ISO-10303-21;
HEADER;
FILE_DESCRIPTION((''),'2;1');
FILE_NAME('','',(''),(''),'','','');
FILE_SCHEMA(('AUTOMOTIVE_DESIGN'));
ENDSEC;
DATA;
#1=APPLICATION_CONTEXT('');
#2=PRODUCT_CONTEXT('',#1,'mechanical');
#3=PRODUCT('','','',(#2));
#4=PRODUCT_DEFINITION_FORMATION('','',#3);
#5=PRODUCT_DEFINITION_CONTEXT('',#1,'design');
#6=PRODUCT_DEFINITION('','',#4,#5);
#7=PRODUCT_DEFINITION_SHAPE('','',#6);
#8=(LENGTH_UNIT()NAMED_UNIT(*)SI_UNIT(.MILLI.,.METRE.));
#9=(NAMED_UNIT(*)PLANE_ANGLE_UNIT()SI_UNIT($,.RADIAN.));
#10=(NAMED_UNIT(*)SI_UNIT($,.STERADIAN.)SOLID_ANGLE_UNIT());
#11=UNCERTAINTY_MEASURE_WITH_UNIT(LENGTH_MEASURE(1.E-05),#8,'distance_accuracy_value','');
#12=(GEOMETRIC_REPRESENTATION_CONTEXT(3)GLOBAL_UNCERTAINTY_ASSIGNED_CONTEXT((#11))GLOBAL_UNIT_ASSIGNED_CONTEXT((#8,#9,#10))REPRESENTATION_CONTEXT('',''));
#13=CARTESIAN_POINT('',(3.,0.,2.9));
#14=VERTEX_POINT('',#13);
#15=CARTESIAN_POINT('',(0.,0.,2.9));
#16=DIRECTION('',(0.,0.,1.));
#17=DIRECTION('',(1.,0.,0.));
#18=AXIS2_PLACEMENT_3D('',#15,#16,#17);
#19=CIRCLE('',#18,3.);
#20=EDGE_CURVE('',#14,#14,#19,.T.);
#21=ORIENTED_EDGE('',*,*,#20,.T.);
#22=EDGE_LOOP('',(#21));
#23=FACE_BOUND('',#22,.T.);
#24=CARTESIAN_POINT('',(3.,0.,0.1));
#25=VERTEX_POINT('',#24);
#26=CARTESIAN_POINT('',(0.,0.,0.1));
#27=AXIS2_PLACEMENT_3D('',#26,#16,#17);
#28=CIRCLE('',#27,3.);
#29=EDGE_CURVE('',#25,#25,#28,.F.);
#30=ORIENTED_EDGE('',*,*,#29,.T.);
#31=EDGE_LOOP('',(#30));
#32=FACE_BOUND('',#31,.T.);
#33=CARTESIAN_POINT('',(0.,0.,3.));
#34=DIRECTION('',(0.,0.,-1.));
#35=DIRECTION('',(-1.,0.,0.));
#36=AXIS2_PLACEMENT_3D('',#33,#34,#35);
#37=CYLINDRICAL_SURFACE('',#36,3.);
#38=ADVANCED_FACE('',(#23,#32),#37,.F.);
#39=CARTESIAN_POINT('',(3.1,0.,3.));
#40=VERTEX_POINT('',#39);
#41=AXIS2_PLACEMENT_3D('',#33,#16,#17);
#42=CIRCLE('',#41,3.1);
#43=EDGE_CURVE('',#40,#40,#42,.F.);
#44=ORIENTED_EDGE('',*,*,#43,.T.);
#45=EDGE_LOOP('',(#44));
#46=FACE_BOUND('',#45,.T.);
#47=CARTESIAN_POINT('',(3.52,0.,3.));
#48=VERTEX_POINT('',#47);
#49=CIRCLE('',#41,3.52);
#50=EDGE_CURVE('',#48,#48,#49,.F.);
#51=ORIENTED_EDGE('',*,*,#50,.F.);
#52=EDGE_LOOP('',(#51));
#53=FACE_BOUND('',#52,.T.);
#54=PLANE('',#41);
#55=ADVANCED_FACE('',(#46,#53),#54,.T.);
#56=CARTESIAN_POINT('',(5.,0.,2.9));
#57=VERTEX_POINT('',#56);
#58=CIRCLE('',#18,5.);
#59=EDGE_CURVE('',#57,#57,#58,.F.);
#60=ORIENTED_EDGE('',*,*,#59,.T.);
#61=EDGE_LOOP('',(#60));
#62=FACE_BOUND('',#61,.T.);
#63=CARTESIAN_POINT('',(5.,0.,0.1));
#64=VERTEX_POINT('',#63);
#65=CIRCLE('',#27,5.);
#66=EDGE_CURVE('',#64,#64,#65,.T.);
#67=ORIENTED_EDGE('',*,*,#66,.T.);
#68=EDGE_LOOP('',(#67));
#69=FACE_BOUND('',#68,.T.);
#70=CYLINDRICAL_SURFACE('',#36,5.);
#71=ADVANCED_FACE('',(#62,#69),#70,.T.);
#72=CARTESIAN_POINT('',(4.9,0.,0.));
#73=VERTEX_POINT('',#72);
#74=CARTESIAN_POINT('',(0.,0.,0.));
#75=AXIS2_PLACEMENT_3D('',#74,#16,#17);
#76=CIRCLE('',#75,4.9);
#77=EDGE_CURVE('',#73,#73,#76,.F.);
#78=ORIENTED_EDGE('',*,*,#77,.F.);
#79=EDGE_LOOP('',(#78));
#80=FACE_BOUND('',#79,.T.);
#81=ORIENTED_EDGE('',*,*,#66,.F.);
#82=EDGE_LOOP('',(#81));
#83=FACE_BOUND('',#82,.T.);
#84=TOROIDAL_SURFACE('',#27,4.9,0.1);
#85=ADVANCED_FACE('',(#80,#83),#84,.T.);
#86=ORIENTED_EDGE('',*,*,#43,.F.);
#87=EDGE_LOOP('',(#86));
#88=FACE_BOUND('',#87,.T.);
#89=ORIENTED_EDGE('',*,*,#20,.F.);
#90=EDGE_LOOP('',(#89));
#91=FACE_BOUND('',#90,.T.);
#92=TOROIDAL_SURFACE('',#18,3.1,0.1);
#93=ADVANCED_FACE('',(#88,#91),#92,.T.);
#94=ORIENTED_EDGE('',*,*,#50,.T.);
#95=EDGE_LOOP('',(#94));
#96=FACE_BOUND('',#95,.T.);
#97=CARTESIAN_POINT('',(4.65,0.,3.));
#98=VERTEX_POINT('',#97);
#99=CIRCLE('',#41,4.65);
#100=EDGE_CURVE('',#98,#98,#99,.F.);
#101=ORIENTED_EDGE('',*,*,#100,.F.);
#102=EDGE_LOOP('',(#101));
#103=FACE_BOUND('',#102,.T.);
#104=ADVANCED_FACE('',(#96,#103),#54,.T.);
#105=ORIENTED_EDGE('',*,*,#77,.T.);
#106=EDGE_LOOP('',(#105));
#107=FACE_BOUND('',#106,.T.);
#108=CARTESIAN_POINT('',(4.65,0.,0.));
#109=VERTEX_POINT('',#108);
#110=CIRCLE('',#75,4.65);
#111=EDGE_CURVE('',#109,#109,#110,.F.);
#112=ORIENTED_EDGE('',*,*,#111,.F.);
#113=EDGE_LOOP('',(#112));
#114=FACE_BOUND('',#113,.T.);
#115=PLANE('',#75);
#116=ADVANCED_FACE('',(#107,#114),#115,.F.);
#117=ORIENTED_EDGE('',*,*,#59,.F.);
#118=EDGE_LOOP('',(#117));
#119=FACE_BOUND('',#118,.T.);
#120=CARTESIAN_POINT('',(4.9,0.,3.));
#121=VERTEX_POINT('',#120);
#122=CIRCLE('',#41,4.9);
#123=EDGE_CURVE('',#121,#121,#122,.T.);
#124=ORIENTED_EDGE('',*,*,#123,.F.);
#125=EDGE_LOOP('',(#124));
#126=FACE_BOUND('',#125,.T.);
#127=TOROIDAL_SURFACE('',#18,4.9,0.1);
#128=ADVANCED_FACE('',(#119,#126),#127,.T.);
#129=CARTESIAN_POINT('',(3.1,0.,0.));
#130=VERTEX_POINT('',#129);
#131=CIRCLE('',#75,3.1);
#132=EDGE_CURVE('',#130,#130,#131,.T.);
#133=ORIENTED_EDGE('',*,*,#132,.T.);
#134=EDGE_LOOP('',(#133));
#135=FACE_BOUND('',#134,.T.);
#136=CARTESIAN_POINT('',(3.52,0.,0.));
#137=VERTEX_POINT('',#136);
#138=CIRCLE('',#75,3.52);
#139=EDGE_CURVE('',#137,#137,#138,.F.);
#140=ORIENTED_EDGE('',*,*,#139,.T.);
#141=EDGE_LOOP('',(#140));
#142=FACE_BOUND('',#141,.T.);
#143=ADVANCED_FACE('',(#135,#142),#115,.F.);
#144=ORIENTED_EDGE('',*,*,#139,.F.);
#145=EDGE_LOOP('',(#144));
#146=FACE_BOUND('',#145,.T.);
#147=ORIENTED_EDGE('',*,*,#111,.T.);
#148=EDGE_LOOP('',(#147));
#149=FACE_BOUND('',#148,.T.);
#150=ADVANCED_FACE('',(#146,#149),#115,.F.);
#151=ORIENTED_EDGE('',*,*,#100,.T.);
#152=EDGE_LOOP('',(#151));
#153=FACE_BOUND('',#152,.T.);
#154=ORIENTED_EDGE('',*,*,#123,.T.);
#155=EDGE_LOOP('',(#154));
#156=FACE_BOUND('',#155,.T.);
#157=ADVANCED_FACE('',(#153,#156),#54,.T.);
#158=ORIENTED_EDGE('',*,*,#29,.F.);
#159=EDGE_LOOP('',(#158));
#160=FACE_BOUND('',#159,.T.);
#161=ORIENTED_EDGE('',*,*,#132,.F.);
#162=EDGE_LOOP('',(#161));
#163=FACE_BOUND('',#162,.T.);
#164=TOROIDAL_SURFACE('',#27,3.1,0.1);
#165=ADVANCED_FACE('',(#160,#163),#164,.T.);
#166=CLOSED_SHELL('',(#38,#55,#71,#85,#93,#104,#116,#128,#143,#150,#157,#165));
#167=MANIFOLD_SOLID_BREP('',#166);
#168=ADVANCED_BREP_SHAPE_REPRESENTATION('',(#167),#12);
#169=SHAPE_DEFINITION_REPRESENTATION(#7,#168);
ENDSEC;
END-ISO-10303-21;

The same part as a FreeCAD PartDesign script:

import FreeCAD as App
import Part
import Sketcher


def edges_at(feature, points):
    """Names of the edges that pass closest to the given points."""
    edges = feature.Shape.Edges
    near = lambda p: min(range(len(edges)), key=lambda i: edges[i].distToShape(Part.Vertex(*p))[0])
    return sorted({f"Edge{near(p) + 1}" for p in points})

doc = App.newDocument("Part")
body = doc.addObject("PartDesign::Body", "Body")

sketch1 = body.newObject("Sketcher::SketchObject", "Sketch")
sketch1.AttachmentSupport = (doc.getObject("XY_Plane"), [""])
sketch1.MapMode = "FlatFace"
sketch1.addGeometry([
    Part.Circle(App.Vector(0, 0, 0), App.Vector(0, 0, 1), 5),
    Part.Circle(App.Vector(0, 0, 0), App.Vector(0, 0, 1), 3),
], False)
sketch1.addConstraint([
    Sketcher.Constraint("Coincident", 0, 3, -1, 1),
    Sketcher.Constraint("Coincident", 1, 3, -1, 1),
    Sketcher.Constraint("Diameter", 0, 10.0),
    Sketcher.Constraint("Diameter", 1, 6.0),
])
pad1 = body.newObject("PartDesign::Pad", "Pad")
pad1.Profile = sketch1
pad1.Length = 3
doc.recompute()

fillet = body.newObject("PartDesign::Fillet", "Fillet")
fillet.Base = (pad1, edges_at(pad1, [
    (-5, 0, 0),
    (-5, 0, 3),
    (-3, 0, 0),
    (-3, 0, 3),
]))
fillet.Radius = 0.1

doc.recompute()
